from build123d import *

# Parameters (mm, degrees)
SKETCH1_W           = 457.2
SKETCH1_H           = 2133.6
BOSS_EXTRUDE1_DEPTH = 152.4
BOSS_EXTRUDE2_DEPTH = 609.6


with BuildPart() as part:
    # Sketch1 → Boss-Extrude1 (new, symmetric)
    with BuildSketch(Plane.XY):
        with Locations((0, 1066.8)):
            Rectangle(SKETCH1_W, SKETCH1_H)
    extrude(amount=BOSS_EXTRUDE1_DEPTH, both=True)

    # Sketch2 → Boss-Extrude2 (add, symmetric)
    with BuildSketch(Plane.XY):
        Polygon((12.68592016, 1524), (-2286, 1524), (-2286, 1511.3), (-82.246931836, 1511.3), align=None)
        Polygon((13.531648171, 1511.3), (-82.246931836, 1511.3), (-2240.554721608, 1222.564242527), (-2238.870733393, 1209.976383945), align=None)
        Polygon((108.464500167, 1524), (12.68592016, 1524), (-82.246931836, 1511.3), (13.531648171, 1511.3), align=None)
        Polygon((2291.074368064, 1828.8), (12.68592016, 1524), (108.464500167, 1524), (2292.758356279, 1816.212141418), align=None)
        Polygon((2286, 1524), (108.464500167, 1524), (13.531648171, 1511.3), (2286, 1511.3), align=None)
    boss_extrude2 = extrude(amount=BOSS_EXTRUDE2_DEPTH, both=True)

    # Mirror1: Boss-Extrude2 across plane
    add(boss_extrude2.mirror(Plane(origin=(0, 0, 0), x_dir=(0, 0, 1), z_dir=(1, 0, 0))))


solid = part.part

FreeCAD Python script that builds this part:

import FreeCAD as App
import Part
import Sketcher

V = App.Vector
Q = App.Units.Quantity


def add_polygon(sketch, points):
    """Adds a closed chain of lines whose ends are joined by coincident constraints."""
    first, n = sketch.GeometryCount, len(points)
    for a, b in zip(points, points[1:] + points[:1]):
        sketch.addGeometry(Part.LineSegment(App.Vector(*a, 0), App.Vector(*b, 0)), False)
    for i in range(n):
        sketch.addConstraint(Sketcher.Constraint("Coincident", first + i, 2, first + (i + 1) % n, 1))

doc = App.newDocument("Part")
body = doc.addObject("PartDesign::Body", "Body")

sketch1 = body.newObject("Sketcher::SketchObject", "Sketch")
sketch1.AttachmentSupport = (doc.getObject("XY_Plane"), [""])
sketch1.MapMode = "FlatFace"
add_polygon(sketch1, [(-229, 2134), (-229, 0), (229, 0), (229, 2134)])
sketch1.addConstraint([
    Sketcher.Constraint("Vertical", 0),
    Sketcher.Constraint("Horizontal", 1),
    Sketcher.Constraint("Vertical", 2),
    Sketcher.Constraint("Horizontal", 3),
    Sketcher.Constraint("Symmetric", 0, 2, 1, 2, -1, 1),
    Sketcher.Constraint("DistanceX", 1, 1, 1, 2, Q("18 in")),
    Sketcher.Constraint("DistanceY", 0, 2, 0, 1, Q("84 in")),
])
pad1 = body.newObject("PartDesign::Pad", "Pad")
pad1.Profile = sketch1
pad1.Length = Q("12 in")
pad1.Midplane = True

sketch2 = body.newObject("Sketcher::SketchObject", "Sketch001")
sketch2.AttachmentSupport = (doc.getObject("XY_Plane"), [""])
sketch2.MapMode = "FlatFace"
add_polygon(sketch2, [(-2286, 1524), (-2286, 1511), (-82, 1511), (-2241, 1223), (-2239, 1210), (14, 1511), (2286, 1511), (2286, 1524), (108, 1524), (2293, 1816), (2291, 1829), (13, 1524)])
sketch2.addConstraint([
    Sketcher.Constraint("Vertical", 0),
    Sketcher.Constraint("Horizontal", 1),
    Sketcher.Constraint("Horizontal", 5),
    Sketcher.Constraint("Vertical", 6),
    Sketcher.Constraint("Horizontal", 7),
    Sketcher.Constraint("Horizontal", 11),
    Sketcher.Constraint("Symmetric", 0, 2, 5, 2, -2),
    Sketcher.Constraint("Perpendicular", 2, 3),
    Sketcher.Constraint("Perpendicular", 3, 4),
    Sketcher.Constraint("Parallel", 4, 8),
    Sketcher.Constraint("Perpendicular", 8, 9),
    Sketcher.Constraint("Perpendicular", 9, 10),
    Sketcher.Constraint("Horizontal", 7, 2, 10, 2),
    Sketcher.Constraint("Equal", 3, 9),
    Sketcher.Constraint("DistanceY", 0, 2, 0, 1, Q("0.5 in")),
    Sketcher.Constraint("DistanceX", 0, 2, -1, 1, Q("90 in")),
    Sketcher.Constraint("DistanceY", -1, 1, 6, 2, Q("60 in")),
    Sketcher.Constraint("DistanceY", -1, 1, 9, 2, Q("72 in")),
    Sketcher.Constraint("Distance", 3, Q("0.5 in")),
    Sketcher.Constraint("DistanceX", 7, 2, 7, 1, Q("2177.5355 mm")),
    Sketcher.Constraint("Distance", 2, Q("2177.5355 mm")),
    Sketcher.Constraint("DistanceX", 1, 1, 1, 2, Q("2203.753068 mm")),
    Sketcher.Constraint("DistanceX", 5, 1, 5, 2, Q("2272.468352 mm")),
])
pad2 = body.newObject("PartDesign::Pad", "Pad001")
pad2.Profile = sketch2
pad2.Length = Q("48 in")
pad2.Midplane = True
doc.recompute()

mirrored = body.newObject("PartDesign::Mirrored", "Mirrored")
mirrored.Originals = [pad2]
mirrored.MirrorPlane = (doc.getObject("YZ_Plane"), [""])
body.Tip = mirrored

doc.recompute()
